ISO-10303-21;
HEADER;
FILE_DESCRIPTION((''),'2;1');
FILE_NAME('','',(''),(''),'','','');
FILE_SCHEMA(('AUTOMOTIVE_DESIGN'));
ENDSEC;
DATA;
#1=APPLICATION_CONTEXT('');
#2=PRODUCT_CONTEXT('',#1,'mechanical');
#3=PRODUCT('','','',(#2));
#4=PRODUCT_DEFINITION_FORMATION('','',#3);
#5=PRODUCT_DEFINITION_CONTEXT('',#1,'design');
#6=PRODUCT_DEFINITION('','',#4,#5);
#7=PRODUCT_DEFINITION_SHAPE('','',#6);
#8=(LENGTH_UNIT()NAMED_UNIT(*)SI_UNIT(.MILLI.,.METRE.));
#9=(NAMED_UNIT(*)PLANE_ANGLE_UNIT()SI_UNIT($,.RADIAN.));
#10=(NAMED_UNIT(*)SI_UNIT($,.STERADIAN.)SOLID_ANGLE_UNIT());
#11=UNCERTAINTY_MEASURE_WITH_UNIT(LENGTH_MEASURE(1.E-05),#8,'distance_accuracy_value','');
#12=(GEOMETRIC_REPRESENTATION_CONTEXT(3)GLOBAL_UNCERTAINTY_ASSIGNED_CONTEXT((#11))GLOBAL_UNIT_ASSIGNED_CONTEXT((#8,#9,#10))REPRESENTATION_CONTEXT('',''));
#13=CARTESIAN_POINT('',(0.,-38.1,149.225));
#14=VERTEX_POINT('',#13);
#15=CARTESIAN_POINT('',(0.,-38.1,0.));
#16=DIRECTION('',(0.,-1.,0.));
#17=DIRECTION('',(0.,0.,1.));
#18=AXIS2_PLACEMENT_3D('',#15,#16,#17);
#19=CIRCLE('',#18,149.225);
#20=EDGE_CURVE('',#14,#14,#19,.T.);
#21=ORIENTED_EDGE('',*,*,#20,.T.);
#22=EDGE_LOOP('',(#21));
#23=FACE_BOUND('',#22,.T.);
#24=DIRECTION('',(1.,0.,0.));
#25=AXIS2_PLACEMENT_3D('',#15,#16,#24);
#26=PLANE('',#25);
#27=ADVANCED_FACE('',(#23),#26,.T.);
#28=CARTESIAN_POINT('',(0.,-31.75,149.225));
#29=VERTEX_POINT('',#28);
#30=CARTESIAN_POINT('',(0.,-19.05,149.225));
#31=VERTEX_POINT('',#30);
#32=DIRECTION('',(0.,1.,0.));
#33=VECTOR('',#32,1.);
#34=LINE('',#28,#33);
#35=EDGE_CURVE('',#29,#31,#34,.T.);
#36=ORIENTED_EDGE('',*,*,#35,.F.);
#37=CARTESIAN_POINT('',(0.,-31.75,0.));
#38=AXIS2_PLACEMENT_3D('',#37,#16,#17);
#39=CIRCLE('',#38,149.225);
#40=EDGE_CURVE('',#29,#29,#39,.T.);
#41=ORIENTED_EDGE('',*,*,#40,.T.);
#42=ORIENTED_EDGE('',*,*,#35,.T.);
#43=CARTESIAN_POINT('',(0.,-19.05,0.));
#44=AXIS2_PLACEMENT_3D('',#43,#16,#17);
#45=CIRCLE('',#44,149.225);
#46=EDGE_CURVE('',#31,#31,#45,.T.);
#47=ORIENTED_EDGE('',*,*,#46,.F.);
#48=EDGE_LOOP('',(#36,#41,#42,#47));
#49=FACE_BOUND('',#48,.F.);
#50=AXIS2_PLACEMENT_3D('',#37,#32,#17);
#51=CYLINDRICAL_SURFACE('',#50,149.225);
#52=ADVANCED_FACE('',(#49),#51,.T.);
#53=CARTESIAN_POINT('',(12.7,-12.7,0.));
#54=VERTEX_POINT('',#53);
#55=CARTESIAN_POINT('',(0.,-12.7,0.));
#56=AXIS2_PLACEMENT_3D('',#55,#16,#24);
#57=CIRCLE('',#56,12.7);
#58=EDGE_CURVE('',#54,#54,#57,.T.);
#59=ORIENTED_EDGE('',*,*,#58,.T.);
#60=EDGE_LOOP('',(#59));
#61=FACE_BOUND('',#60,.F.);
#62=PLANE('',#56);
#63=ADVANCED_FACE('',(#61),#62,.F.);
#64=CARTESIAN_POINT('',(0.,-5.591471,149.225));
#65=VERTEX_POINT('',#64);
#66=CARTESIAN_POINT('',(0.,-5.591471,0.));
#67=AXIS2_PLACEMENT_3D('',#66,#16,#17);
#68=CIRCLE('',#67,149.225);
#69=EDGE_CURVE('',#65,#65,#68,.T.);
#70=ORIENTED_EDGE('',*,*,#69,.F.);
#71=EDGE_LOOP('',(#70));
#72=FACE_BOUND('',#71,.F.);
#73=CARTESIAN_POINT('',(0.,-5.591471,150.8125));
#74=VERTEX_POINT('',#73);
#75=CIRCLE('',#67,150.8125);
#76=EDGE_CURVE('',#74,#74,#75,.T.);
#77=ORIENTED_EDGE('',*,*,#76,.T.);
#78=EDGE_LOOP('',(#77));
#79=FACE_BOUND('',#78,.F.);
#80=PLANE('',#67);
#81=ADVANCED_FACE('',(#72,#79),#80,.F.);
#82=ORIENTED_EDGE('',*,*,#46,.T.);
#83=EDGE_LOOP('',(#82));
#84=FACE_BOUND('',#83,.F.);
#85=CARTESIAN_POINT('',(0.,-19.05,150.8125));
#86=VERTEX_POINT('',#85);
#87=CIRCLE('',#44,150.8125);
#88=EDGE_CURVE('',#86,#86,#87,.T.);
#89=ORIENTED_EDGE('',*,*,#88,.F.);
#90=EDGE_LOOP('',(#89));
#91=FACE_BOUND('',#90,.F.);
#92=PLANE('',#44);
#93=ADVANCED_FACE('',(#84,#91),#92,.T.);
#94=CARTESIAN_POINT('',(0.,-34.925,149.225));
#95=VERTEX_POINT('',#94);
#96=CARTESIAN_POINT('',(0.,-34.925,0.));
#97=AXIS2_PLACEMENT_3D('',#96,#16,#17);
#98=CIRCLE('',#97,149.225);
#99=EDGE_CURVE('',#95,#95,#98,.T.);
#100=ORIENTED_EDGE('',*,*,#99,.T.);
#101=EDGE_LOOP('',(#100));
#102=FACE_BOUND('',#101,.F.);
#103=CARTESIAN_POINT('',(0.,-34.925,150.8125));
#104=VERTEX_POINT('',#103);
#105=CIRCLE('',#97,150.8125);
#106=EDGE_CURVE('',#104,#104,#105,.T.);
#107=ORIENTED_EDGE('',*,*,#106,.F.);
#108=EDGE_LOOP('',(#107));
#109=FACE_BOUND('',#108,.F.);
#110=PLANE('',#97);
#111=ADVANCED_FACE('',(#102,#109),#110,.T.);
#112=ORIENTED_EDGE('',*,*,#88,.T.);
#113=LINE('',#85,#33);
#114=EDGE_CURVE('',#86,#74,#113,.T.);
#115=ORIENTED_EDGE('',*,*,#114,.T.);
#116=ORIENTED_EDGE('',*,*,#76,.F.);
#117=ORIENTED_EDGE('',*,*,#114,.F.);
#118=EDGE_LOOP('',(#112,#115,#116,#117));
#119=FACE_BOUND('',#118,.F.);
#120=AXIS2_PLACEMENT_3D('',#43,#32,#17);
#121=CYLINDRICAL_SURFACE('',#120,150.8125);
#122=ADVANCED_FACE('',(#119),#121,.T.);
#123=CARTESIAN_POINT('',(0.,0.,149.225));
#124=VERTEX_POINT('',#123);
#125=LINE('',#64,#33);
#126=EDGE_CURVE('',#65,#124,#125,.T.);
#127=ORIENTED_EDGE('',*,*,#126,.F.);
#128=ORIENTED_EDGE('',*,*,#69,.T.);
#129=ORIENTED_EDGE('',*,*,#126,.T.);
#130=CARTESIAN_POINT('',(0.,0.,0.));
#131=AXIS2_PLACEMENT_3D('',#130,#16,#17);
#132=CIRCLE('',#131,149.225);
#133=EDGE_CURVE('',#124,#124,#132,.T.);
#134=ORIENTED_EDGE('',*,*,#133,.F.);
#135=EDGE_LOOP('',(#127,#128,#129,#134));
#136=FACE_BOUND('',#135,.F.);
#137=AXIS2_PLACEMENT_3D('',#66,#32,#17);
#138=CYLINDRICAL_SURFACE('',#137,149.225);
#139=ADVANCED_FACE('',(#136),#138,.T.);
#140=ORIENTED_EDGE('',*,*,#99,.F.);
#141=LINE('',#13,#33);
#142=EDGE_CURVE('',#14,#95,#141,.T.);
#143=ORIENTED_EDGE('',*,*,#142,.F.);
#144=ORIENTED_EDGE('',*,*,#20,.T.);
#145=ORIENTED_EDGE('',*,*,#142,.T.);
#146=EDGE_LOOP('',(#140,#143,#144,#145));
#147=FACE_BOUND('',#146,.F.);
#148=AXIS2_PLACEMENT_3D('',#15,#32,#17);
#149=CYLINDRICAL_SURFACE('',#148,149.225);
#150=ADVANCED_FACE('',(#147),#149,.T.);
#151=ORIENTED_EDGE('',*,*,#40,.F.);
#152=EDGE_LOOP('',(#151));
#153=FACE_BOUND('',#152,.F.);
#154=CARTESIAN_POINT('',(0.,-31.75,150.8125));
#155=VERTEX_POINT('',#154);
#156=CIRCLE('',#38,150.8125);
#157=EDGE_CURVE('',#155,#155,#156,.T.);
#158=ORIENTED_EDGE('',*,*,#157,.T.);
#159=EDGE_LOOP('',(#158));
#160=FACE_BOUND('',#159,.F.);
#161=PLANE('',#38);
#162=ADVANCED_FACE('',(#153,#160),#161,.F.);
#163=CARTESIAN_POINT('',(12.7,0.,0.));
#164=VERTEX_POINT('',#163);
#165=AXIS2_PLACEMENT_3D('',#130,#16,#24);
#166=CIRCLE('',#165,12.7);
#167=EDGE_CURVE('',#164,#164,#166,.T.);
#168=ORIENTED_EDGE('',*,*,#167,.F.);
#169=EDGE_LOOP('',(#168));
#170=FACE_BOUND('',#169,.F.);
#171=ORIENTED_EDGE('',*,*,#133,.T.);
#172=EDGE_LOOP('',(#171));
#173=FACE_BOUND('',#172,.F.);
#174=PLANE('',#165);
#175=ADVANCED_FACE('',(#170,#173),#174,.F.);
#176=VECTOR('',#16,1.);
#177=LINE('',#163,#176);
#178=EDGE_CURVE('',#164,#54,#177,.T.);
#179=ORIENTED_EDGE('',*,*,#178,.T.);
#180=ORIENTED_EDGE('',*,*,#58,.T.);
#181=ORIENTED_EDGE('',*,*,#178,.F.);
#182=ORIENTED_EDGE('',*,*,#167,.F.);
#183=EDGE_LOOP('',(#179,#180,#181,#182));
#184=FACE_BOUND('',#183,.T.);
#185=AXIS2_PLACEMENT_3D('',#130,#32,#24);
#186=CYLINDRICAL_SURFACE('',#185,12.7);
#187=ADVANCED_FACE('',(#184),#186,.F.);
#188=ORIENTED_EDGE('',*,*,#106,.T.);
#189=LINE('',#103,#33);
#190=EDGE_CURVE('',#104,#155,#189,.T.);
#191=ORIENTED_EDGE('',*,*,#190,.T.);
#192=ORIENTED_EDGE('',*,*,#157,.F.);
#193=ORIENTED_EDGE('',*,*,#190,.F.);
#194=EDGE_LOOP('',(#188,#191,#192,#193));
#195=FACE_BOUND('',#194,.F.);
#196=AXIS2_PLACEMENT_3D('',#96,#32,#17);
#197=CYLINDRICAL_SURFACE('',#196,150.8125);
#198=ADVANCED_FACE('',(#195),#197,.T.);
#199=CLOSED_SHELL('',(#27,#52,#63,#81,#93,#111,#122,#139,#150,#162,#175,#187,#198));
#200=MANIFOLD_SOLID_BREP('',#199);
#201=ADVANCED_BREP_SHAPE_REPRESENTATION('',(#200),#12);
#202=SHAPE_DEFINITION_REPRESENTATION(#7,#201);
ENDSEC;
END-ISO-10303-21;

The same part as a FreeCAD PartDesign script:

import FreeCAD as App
import Part
import Sketcher
Q = App.Units.Quantity


def add_polygon(sketch, points):
    """Adds a closed chain of lines whose ends are joined by coincident constraints."""
    first, n = sketch.GeometryCount, len(points)
    for a, b in zip(points, points[1:] + points[:1]):
        sketch.addGeometry(Part.LineSegment(App.Vector(*a, 0), App.Vector(*b, 0)), False)
    for i in range(n):
        sketch.addConstraint(Sketcher.Constraint("Coincident", first + i, 2, first + (i + 1) % n, 1))

doc = App.newDocument("Part")
params = doc.addObject("Spreadsheet::Sheet", "Params")
for row, (alias, value) in enumerate([
    ("sketch1_diameter", "12 in"),
    ("pad1_length", "1.5 in"),
    ("sketch2_width", "0.5 in"),
    ("sketch2_width2", "1.5 in"),
    ("sketch2_width3", "0.125 in"),
    ("sketch2_height", "0.145 in"),
    ("sketch2_height2", "0.0625 in"),
    ("groove_angle", "360 deg"),
    ("sketch3_diameter", "1 in"),
    ("pocket1_length", "0.5 in"),
], start=1):
    params.set(f"A{row}", alias)
    params.set(f"B{row}", "=" + value)
    params.setAlias(f"B{row}", alias)

body = doc.addObject("PartDesign::Body", "Body")

sketch1 = body.newObject("Sketcher::SketchObject", "Sketch")
sketch1.AttachmentSupport = (doc.getObject("XZ_Plane"), [""])
sketch1.MapMode = "FlatFace"
sketch1.addGeometry(Part.Circle(App.Vector(0, 0, 0), App.Vector(0, 0, 1), 152), False)
sketch1.addConstraint(Sketcher.Constraint("Coincident", 0, 3, -1, 1))
sketch1.addConstraint(Sketcher.Constraint("Diameter", 0, Q("12 in")))
sketch1.setExpression("Constraints[1]", "Params.sketch1_diameter")
pad1 = body.newObject("PartDesign::Pad", "Pad")
pad1.Profile = sketch1
pad1.setExpression("Length", "Params.pad1_length")

sketch2 = body.newObject("Sketcher::SketchObject", "Sketch001")
sketch2.AttachmentSupport = (doc.getObject("YZ_Plane"), [""])
sketch2.MapMode = "FlatFace"
add_polygon(sketch2, [(-38.1, 152.9), (-38.1, 149.2), (-34.9, 149.2), (-34.9, 150.8), (-31.8, 150.8), (-31.8, 149.2), (-19.1, 149.2), (-19.1, 150.8), (-5.6, 150.8), (-5.6, 149.2), (0, 149.2), (0, 152.9)])
sketch2.addConstraint(Sketcher.Constraint("Vertical", 0))
sketch2.addConstraint(Sketcher.Constraint("Horizontal", 1))
sketch2.addConstraint(Sketcher.Constraint("Vertical", 2))
sketch2.addConstraint(Sketcher.Constraint("Horizontal", 3))
sketch2.addConstraint(Sketcher.Constraint("Vertical", 4))
sketch2.addConstraint(Sketcher.Constraint("Horizontal", 5))
sketch2.addConstraint(Sketcher.Constraint("Vertical", 6))
sketch2.addConstraint(Sketcher.Constraint("Horizontal", 7))
sketch2.addConstraint(Sketcher.Constraint("Vertical", 8))
sketch2.addConstraint(Sketcher.Constraint("Horizontal", 9))
sketch2.addConstraint(Sketcher.Constraint("Vertical", 10))
sketch2.addConstraint(Sketcher.Constraint("Horizontal", 11))
sketch2.addConstraint(Sketcher.Constraint("PointOnObject", 9, 2, -2))
sketch2.addConstraint(Sketcher.Constraint("Horizontal", 1, 2, 4, 2))
sketch2.addConstraint(Sketcher.Constraint("Horizontal", 3, 2, 6, 2))
sketch2.addConstraint(Sketcher.Constraint("Horizontal", 5, 2, 8, 2))
sketch2.addConstraint(Sketcher.Constraint("Equal", 1, 3))
sketch2.addConstraint(Sketcher.Constraint("DistanceX", 5, 1, 5, 2, Q("0.5 in")))
sketch2.addConstraint(Sketcher.Constraint("DistanceX", 11, 2, 11, 1, Q("1.5 in")))
sketch2.addConstraint(Sketcher.Constraint("DistanceX", 1, 1, 1, 2, Q("0.125 in")))
sketch2.addConstraint(Sketcher.Constraint("DistanceY", 0, 2, 0, 1, Q("0.145 in")))
sketch2.addConstraint(Sketcher.Constraint("DistanceY", 2, 1, 2, 2, Q("0.0625 in")))
sketch2.addConstraint(Sketcher.Constraint("DistanceY", -1, 1, 10, 2, Q("6.02 in")))
sketch2.addConstraint(Sketcher.Constraint("DistanceX", 7, 1, 7, 2, 13.458529))
sketch2.setExpression("Constraints[29]", "Params.sketch2_width")
sketch2.setExpression("Constraints[30]", "Params.sketch2_width2")
sketch2.setExpression("Constraints[31]", "Params.sketch2_width3")
sketch2.setExpression("Constraints[32]", "Params.sketch2_height")
sketch2.setExpression("Constraints[33]", "Params.sketch2_height2")
groove = body.newObject("PartDesign::Groove", "Groove")
groove.Profile = sketch2
groove.ReferenceAxis = (sketch2, ["H_Axis"])
groove.setExpression("Angle", "Params.groove_angle")

sketch3 = body.newObject("Sketcher::SketchObject", "Sketch002")
sketch3.AttachmentSupport = (doc.getObject("XZ_Plane"), [""])
sketch3.MapMode = "FlatFace"
sketch3.addGeometry(Part.Circle(App.Vector(0, 0, 0), App.Vector(0, 0, 1), 13), False)
sketch3.addConstraint(Sketcher.Constraint("Coincident", 0, 3, -1, 1))
sketch3.addConstraint(Sketcher.Constraint("Diameter", 0, Q("1 in")))
sketch3.setExpression("Constraints[1]", "Params.sketch3_diameter")
pocket1 = body.newObject("PartDesign::Pocket", "Pocket")
pocket1.Profile = sketch3
pocket1.setExpression("Length", "Params.pocket1_length")
pocket1.Reversed = True

doc.recompute()
